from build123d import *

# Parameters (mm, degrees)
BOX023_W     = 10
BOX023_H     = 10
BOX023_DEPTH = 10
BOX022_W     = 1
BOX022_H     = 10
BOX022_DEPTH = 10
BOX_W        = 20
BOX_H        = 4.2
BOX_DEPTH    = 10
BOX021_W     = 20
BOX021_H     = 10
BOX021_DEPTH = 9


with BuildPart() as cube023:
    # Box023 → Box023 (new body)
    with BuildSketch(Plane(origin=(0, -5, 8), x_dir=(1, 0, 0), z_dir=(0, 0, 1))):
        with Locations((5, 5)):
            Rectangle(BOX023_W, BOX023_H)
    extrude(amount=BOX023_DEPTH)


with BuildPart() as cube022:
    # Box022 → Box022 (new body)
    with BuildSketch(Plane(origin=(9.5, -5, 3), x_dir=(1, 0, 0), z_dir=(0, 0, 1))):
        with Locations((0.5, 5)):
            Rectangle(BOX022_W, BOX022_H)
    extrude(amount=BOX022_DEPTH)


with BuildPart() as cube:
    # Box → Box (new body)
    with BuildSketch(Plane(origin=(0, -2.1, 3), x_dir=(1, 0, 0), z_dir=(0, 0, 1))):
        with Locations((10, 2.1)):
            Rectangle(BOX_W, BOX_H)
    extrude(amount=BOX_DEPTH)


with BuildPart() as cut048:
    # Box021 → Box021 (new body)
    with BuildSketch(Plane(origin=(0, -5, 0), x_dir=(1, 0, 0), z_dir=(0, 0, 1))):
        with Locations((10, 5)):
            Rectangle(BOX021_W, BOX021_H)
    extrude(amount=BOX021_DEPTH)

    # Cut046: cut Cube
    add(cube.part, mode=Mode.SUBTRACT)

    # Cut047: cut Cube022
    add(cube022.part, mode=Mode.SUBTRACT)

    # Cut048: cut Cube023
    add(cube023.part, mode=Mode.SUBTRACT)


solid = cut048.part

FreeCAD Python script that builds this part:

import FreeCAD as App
import Part
import Sketcher
Q = App.Units.Quantity

doc = App.newDocument("Part")
body = doc.addObject("PartDesign::Body", "Body")

# Sketch on XY plane
sketch1 = body.newObject("Sketcher::SketchObject", "Sketch")
sketch1.AttachmentSupport = (doc.getObject("XY_Plane"), [""])
sketch1.MapMode = "FlatFace"
sketch1.AttachmentOffset = App.Placement(App.Vector(0, 0, 8), App.Rotation())
sketch1.addGeometry([
    Part.LineSegment(App.Vector(0, 5, 0), App.Vector(0, -5, 0)),
    Part.LineSegment(App.Vector(0, -5, 0), App.Vector(10, -5, 0)),
    Part.LineSegment(App.Vector(10, -5, 0), App.Vector(10, 5, 0)),
    Part.LineSegment(App.Vector(10, 5, 0), App.Vector(0, 5, 0)),
], False)
sketch1.addConstraint([
    Sketcher.Constraint("Coincident", 0, 2, 1, 1),
    Sketcher.Constraint("Coincident", 1, 2, 2, 1),
    Sketcher.Constraint("Coincident", 2, 2, 3, 1),
    Sketcher.Constraint("Coincident", 3, 2, 0, 1),
    Sketcher.Constraint("Vertical", 0),
    Sketcher.Constraint("Horizontal", 1),
    Sketcher.Constraint("Vertical", 2),
    Sketcher.Constraint("Horizontal", 3),
    Sketcher.Constraint("Symmetric", 0, 2, 3, 2, -1, 1),
    Sketcher.Constraint("Equal", 3, 0),
    Sketcher.Constraint("DistanceX", 1, 1, 1, 2, Q("10 mm")),
])
pad1 = body.newObject("PartDesign::Pad", "Pad")
pad1.Profile = sketch1
pad1.Length = 10
body2 = doc.addObject("PartDesign::Body", "Body001")

# Sketch on XY plane
sketch2 = body2.newObject("Sketcher::SketchObject", "Sketch001")
sketch2.AttachmentSupport = (doc.getObject("XY_Plane001"), [""])
sketch2.MapMode = "FlatFace"
sketch2.AttachmentOffset = App.Placement(App.Vector(0, 0, 3), App.Rotation())
sketch2.addGeometry([
    Part.LineSegment(App.Vector(9.5, 5, 0), App.Vector(9.5, -5, 0)),
    Part.LineSegment(App.Vector(9.5, -5, 0), App.Vector(10.5, -5, 0)),
    Part.LineSegment(App.Vector(10.5, -5, 0), App.Vector(10.5, 5, 0)),
    Part.LineSegment(App.Vector(10.5, 5, 0), App.Vector(9.5, 5, 0)),
], False)
sketch2.addConstraint([
    Sketcher.Constraint("Coincident", 0, 2, 1, 1),
    Sketcher.Constraint("Coincident", 1, 2, 2, 1),
    Sketcher.Constraint("Coincident", 2, 2, 3, 1),
    Sketcher.Constraint("Coincident", 3, 2, 0, 1),
    Sketcher.Constraint("Vertical", 0),
    Sketcher.Constraint("Horizontal", 1),
    Sketcher.Constraint("Vertical", 2),
    Sketcher.Constraint("Horizontal", 3),
    Sketcher.Constraint("DistanceX", 1, 1, 1, 2, Q("1 mm")),
    Sketcher.Constraint("DistanceY", 0, 2, 0, 1, Q("10 mm")),
    Sketcher.Constraint("DistanceY", 0, 2, -1, 1, Q("5 mm")),
    Sketcher.Constraint("DistanceX", -1, 1, 0, 2, Q("9.5 mm")),
])
pad2 = body2.newObject("PartDesign::Pad", "Pad001")
pad2.Profile = sketch2
pad2.Length = 10
body3 = doc.addObject("PartDesign::Body", "Body002")

# Sketch on XY plane
sketch3 = body3.newObject("Sketcher::SketchObject", "Sketch002")
sketch3.AttachmentSupport = (doc.getObject("XY_Plane002"), [""])
sketch3.MapMode = "FlatFace"
sketch3.AttachmentOffset = App.Placement(App.Vector(0, 0, 3), App.Rotation())
sketch3.addGeometry([
    Part.LineSegment(App.Vector(0, 2.1, 0), App.Vector(0, -2.1, 0)),
    Part.LineSegment(App.Vector(0, -2.1, 0), App.Vector(20, -2.1, 0)),
    Part.LineSegment(App.Vector(20, -2.1, 0), App.Vector(20, 2.1, 0)),
    Part.LineSegment(App.Vector(20, 2.1, 0), App.Vector(0, 2.1, 0)),
], False)
sketch3.addConstraint([
    Sketcher.Constraint("Coincident", 0, 2, 1, 1),
    Sketcher.Constraint("Coincident", 1, 2, 2, 1),
    Sketcher.Constraint("Coincident", 2, 2, 3, 1),
    Sketcher.Constraint("Coincident", 3, 2, 0, 1),
    Sketcher.Constraint("Vertical", 0),
    Sketcher.Constraint("Horizontal", 1),
    Sketcher.Constraint("Vertical", 2),
    Sketcher.Constraint("Horizontal", 3),
    Sketcher.Constraint("Symmetric", 0, 2, 3, 2, -1, 1),
    Sketcher.Constraint("DistanceX", 1, 1, 1, 2, Q("20 mm")),
    Sketcher.Constraint("DistanceY", 0, 2, 0, 1, Q("4.2 mm")),
])
pad3 = body3.newObject("PartDesign::Pad", "Pad002")
pad3.Profile = sketch3
pad3.Length = 10
body4 = doc.addObject("PartDesign::Body", "Body003")

# Sketch on XY plane
sketch4 = body4.newObject("Sketcher::SketchObject", "Sketch003")
sketch4.AttachmentSupport = (doc.getObject("XY_Plane003"), [""])
sketch4.MapMode = "FlatFace"
sketch4.addGeometry([
    Part.LineSegment(App.Vector(0, 5, 0), App.Vector(0, -5, 0)),
    Part.LineSegment(App.Vector(0, -5, 0), App.Vector(20, -5, 0)),
    Part.LineSegment(App.Vector(20, -5, 0), App.Vector(20, 5, 0)),
    Part.LineSegment(App.Vector(20, 5, 0), App.Vector(0, 5, 0)),
], False)
sketch4.addConstraint([
    Sketcher.Constraint("Coincident", 0, 2, 1, 1),
    Sketcher.Constraint("Coincident", 1, 2, 2, 1),
    Sketcher.Constraint("Coincident", 2, 2, 3, 1),
    Sketcher.Constraint("Coincident", 3, 2, 0, 1),
    Sketcher.Constraint("Vertical", 0),
    Sketcher.Constraint("Horizontal", 1),
    Sketcher.Constraint("Vertical", 2),
    Sketcher.Constraint("Horizontal", 3),
    Sketcher.Constraint("Symmetric", 0, 2, 3, 2, -1, 1),
    Sketcher.Constraint("DistanceX", 1, 1, 1, 2, Q("20 mm")),
    Sketcher.Constraint("DistanceY", 0, 2, 0, 1, Q("10 mm")),
])
pad4 = body4.newObject("PartDesign::Pad", "Pad003")
pad4.Profile = sketch4
pad4.Length = 9
doc.recompute()

boolean = body4.newObject("PartDesign::Boolean", "Boolean")
boolean.Type = "Cut"
boolean.addObjects([body3])
doc.recompute()

boolean2 = body4.newObject("PartDesign::Boolean", "Boolean001")
boolean2.Type = "Cut"
boolean2.addObjects([body2])
doc.recompute()

boolean3 = body4.newObject("PartDesign::Boolean", "Boolean002")
boolean3.Type = "Cut"
boolean3.addObjects([body])

doc.recompute()
